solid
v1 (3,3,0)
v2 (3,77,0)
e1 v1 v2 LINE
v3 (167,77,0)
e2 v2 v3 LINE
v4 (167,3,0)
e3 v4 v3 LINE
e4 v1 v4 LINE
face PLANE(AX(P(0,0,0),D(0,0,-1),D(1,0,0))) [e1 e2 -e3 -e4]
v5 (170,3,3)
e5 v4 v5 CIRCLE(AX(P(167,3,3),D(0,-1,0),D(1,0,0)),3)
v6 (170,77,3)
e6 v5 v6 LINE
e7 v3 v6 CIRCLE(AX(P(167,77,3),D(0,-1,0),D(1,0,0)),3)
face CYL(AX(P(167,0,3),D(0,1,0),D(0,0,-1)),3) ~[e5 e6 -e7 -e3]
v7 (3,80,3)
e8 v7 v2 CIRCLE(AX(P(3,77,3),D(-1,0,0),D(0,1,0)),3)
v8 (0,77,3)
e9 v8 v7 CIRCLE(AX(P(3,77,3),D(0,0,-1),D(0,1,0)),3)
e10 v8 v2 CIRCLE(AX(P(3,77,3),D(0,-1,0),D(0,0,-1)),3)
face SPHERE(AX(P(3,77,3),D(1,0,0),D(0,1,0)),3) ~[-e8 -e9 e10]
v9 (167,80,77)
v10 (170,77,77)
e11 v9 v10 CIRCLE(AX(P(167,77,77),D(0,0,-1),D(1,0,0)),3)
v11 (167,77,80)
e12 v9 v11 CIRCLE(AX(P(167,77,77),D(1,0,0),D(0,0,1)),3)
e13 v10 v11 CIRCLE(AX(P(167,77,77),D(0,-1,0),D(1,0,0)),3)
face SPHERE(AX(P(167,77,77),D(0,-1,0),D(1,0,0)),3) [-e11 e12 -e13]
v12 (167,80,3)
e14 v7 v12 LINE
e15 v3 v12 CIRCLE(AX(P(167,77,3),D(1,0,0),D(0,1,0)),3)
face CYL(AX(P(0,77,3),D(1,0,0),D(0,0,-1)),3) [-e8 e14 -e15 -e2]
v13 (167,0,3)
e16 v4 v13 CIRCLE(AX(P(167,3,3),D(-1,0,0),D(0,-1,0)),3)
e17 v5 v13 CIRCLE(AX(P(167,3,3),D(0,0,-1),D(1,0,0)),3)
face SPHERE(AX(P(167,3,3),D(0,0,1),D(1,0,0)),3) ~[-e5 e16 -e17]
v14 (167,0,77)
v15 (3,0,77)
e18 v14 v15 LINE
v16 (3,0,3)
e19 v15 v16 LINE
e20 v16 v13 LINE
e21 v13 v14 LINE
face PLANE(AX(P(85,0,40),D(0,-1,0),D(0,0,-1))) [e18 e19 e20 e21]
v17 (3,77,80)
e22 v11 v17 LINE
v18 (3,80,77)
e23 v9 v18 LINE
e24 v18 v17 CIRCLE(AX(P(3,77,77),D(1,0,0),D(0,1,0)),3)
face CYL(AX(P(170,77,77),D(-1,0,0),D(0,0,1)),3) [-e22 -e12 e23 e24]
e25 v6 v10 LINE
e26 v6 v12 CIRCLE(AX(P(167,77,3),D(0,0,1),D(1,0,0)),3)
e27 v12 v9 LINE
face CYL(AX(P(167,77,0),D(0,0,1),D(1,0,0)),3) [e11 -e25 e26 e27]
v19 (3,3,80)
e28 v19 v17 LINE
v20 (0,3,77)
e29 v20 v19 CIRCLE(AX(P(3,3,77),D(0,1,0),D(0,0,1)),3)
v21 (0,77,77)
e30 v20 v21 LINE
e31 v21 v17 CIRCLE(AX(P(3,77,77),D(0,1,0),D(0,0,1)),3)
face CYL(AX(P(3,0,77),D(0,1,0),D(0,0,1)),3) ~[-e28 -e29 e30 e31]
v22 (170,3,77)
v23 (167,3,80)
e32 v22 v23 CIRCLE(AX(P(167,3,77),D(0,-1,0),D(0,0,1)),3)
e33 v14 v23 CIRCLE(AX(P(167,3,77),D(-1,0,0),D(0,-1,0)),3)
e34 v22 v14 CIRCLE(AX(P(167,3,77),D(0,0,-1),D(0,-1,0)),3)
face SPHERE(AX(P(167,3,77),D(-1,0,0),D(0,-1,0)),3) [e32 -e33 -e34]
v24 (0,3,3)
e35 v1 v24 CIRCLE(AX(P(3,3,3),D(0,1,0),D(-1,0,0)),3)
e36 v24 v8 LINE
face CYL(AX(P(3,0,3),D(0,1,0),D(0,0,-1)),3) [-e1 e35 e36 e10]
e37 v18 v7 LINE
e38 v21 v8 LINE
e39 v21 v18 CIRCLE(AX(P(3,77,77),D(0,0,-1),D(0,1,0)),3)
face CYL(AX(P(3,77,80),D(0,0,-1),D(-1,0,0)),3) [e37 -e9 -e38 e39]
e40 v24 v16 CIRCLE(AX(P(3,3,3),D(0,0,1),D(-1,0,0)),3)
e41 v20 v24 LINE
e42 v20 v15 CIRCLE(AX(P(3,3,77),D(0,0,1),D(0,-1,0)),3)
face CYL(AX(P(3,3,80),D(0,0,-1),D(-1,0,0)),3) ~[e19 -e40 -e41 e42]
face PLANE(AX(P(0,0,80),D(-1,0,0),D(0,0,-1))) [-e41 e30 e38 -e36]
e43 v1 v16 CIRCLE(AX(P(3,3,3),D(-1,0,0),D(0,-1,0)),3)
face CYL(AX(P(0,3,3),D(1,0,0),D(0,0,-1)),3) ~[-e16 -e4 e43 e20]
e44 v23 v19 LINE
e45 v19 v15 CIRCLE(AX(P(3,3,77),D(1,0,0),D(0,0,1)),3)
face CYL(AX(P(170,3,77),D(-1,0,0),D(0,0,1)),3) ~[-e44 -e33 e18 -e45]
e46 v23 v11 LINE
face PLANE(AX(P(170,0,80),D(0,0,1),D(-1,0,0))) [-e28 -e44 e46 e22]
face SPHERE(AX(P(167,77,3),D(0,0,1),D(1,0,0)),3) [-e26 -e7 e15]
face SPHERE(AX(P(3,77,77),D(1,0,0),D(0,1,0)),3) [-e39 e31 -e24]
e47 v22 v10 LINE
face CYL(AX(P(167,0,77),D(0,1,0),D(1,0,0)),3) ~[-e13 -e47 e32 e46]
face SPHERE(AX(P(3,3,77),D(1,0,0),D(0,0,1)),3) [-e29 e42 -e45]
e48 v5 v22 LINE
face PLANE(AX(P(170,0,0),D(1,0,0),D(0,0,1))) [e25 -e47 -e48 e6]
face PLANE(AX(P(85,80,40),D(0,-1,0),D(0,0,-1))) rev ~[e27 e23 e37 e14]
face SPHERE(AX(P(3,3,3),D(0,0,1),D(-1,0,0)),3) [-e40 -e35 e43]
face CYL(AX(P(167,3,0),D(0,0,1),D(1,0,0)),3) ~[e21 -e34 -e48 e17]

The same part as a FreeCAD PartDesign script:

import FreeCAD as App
import Part
import Sketcher
from FreeCAD import Vector
Q = App.Units.Quantity


def add_polygon(sketch, points):
    """Adds a closed chain of lines whose ends are joined by coincident constraints."""
    first, n = sketch.GeometryCount, len(points)
    for a, b in zip(points, points[1:] + points[:1]):
        sketch.addGeometry(Part.LineSegment(App.Vector(*a, 0), App.Vector(*b, 0)), False)
    for i in range(n):
        sketch.addConstraint(Sketcher.Constraint("Coincident", first + i, 2, first + (i + 1) % n, 1))

doc = App.newDocument("Part")
body = doc.addObject("PartDesign::Body", "Body")

# Sketch on XZ plane
sketch1 = doc.addObject("Sketcher::SketchObject", "Sketch")
body.addObject(sketch1)
sketch1.AttachmentSupport = (doc.XZ_Plane, [""])
sketch1.MapMode = "FlatFace"
add_polygon(sketch1, [(0, 80), (0, 0), (170, 0), (170, 80)])  # lines 0-3
sketch1.addConstraint(Sketcher.Constraint("Vertical", 0))
sketch1.addConstraint(Sketcher.Constraint("Horizontal", 1))
sketch1.addConstraint(Sketcher.Constraint("Vertical", 2))
sketch1.addConstraint(Sketcher.Constraint("Horizontal", 3))
sketch1.addConstraint(Sketcher.Constraint("Coincident", 0, 2, -1, 1))
sketch1.addConstraint(Sketcher.Constraint("DistanceX", 1, 1, 1, 2, Q("170 mm")))
sketch1.addConstraint(Sketcher.Constraint("DistanceY", 0, 2, 0, 1, Q("80 mm")))
pad1 = doc.addObject("PartDesign::Pad", "Pad")
body.addObject(pad1)
pad1.Profile = sketch1
pad1.Length = 80
pad1.Reversed = True
doc.recompute()

fillet = doc.addObject("PartDesign::Fillet", "Fillet")
body.addObject(fillet)
fillet.Base = (pad1, ["Edge1"])
fillet.UseAllEdges = True
fillet.Radius = 3

doc.recompute()
